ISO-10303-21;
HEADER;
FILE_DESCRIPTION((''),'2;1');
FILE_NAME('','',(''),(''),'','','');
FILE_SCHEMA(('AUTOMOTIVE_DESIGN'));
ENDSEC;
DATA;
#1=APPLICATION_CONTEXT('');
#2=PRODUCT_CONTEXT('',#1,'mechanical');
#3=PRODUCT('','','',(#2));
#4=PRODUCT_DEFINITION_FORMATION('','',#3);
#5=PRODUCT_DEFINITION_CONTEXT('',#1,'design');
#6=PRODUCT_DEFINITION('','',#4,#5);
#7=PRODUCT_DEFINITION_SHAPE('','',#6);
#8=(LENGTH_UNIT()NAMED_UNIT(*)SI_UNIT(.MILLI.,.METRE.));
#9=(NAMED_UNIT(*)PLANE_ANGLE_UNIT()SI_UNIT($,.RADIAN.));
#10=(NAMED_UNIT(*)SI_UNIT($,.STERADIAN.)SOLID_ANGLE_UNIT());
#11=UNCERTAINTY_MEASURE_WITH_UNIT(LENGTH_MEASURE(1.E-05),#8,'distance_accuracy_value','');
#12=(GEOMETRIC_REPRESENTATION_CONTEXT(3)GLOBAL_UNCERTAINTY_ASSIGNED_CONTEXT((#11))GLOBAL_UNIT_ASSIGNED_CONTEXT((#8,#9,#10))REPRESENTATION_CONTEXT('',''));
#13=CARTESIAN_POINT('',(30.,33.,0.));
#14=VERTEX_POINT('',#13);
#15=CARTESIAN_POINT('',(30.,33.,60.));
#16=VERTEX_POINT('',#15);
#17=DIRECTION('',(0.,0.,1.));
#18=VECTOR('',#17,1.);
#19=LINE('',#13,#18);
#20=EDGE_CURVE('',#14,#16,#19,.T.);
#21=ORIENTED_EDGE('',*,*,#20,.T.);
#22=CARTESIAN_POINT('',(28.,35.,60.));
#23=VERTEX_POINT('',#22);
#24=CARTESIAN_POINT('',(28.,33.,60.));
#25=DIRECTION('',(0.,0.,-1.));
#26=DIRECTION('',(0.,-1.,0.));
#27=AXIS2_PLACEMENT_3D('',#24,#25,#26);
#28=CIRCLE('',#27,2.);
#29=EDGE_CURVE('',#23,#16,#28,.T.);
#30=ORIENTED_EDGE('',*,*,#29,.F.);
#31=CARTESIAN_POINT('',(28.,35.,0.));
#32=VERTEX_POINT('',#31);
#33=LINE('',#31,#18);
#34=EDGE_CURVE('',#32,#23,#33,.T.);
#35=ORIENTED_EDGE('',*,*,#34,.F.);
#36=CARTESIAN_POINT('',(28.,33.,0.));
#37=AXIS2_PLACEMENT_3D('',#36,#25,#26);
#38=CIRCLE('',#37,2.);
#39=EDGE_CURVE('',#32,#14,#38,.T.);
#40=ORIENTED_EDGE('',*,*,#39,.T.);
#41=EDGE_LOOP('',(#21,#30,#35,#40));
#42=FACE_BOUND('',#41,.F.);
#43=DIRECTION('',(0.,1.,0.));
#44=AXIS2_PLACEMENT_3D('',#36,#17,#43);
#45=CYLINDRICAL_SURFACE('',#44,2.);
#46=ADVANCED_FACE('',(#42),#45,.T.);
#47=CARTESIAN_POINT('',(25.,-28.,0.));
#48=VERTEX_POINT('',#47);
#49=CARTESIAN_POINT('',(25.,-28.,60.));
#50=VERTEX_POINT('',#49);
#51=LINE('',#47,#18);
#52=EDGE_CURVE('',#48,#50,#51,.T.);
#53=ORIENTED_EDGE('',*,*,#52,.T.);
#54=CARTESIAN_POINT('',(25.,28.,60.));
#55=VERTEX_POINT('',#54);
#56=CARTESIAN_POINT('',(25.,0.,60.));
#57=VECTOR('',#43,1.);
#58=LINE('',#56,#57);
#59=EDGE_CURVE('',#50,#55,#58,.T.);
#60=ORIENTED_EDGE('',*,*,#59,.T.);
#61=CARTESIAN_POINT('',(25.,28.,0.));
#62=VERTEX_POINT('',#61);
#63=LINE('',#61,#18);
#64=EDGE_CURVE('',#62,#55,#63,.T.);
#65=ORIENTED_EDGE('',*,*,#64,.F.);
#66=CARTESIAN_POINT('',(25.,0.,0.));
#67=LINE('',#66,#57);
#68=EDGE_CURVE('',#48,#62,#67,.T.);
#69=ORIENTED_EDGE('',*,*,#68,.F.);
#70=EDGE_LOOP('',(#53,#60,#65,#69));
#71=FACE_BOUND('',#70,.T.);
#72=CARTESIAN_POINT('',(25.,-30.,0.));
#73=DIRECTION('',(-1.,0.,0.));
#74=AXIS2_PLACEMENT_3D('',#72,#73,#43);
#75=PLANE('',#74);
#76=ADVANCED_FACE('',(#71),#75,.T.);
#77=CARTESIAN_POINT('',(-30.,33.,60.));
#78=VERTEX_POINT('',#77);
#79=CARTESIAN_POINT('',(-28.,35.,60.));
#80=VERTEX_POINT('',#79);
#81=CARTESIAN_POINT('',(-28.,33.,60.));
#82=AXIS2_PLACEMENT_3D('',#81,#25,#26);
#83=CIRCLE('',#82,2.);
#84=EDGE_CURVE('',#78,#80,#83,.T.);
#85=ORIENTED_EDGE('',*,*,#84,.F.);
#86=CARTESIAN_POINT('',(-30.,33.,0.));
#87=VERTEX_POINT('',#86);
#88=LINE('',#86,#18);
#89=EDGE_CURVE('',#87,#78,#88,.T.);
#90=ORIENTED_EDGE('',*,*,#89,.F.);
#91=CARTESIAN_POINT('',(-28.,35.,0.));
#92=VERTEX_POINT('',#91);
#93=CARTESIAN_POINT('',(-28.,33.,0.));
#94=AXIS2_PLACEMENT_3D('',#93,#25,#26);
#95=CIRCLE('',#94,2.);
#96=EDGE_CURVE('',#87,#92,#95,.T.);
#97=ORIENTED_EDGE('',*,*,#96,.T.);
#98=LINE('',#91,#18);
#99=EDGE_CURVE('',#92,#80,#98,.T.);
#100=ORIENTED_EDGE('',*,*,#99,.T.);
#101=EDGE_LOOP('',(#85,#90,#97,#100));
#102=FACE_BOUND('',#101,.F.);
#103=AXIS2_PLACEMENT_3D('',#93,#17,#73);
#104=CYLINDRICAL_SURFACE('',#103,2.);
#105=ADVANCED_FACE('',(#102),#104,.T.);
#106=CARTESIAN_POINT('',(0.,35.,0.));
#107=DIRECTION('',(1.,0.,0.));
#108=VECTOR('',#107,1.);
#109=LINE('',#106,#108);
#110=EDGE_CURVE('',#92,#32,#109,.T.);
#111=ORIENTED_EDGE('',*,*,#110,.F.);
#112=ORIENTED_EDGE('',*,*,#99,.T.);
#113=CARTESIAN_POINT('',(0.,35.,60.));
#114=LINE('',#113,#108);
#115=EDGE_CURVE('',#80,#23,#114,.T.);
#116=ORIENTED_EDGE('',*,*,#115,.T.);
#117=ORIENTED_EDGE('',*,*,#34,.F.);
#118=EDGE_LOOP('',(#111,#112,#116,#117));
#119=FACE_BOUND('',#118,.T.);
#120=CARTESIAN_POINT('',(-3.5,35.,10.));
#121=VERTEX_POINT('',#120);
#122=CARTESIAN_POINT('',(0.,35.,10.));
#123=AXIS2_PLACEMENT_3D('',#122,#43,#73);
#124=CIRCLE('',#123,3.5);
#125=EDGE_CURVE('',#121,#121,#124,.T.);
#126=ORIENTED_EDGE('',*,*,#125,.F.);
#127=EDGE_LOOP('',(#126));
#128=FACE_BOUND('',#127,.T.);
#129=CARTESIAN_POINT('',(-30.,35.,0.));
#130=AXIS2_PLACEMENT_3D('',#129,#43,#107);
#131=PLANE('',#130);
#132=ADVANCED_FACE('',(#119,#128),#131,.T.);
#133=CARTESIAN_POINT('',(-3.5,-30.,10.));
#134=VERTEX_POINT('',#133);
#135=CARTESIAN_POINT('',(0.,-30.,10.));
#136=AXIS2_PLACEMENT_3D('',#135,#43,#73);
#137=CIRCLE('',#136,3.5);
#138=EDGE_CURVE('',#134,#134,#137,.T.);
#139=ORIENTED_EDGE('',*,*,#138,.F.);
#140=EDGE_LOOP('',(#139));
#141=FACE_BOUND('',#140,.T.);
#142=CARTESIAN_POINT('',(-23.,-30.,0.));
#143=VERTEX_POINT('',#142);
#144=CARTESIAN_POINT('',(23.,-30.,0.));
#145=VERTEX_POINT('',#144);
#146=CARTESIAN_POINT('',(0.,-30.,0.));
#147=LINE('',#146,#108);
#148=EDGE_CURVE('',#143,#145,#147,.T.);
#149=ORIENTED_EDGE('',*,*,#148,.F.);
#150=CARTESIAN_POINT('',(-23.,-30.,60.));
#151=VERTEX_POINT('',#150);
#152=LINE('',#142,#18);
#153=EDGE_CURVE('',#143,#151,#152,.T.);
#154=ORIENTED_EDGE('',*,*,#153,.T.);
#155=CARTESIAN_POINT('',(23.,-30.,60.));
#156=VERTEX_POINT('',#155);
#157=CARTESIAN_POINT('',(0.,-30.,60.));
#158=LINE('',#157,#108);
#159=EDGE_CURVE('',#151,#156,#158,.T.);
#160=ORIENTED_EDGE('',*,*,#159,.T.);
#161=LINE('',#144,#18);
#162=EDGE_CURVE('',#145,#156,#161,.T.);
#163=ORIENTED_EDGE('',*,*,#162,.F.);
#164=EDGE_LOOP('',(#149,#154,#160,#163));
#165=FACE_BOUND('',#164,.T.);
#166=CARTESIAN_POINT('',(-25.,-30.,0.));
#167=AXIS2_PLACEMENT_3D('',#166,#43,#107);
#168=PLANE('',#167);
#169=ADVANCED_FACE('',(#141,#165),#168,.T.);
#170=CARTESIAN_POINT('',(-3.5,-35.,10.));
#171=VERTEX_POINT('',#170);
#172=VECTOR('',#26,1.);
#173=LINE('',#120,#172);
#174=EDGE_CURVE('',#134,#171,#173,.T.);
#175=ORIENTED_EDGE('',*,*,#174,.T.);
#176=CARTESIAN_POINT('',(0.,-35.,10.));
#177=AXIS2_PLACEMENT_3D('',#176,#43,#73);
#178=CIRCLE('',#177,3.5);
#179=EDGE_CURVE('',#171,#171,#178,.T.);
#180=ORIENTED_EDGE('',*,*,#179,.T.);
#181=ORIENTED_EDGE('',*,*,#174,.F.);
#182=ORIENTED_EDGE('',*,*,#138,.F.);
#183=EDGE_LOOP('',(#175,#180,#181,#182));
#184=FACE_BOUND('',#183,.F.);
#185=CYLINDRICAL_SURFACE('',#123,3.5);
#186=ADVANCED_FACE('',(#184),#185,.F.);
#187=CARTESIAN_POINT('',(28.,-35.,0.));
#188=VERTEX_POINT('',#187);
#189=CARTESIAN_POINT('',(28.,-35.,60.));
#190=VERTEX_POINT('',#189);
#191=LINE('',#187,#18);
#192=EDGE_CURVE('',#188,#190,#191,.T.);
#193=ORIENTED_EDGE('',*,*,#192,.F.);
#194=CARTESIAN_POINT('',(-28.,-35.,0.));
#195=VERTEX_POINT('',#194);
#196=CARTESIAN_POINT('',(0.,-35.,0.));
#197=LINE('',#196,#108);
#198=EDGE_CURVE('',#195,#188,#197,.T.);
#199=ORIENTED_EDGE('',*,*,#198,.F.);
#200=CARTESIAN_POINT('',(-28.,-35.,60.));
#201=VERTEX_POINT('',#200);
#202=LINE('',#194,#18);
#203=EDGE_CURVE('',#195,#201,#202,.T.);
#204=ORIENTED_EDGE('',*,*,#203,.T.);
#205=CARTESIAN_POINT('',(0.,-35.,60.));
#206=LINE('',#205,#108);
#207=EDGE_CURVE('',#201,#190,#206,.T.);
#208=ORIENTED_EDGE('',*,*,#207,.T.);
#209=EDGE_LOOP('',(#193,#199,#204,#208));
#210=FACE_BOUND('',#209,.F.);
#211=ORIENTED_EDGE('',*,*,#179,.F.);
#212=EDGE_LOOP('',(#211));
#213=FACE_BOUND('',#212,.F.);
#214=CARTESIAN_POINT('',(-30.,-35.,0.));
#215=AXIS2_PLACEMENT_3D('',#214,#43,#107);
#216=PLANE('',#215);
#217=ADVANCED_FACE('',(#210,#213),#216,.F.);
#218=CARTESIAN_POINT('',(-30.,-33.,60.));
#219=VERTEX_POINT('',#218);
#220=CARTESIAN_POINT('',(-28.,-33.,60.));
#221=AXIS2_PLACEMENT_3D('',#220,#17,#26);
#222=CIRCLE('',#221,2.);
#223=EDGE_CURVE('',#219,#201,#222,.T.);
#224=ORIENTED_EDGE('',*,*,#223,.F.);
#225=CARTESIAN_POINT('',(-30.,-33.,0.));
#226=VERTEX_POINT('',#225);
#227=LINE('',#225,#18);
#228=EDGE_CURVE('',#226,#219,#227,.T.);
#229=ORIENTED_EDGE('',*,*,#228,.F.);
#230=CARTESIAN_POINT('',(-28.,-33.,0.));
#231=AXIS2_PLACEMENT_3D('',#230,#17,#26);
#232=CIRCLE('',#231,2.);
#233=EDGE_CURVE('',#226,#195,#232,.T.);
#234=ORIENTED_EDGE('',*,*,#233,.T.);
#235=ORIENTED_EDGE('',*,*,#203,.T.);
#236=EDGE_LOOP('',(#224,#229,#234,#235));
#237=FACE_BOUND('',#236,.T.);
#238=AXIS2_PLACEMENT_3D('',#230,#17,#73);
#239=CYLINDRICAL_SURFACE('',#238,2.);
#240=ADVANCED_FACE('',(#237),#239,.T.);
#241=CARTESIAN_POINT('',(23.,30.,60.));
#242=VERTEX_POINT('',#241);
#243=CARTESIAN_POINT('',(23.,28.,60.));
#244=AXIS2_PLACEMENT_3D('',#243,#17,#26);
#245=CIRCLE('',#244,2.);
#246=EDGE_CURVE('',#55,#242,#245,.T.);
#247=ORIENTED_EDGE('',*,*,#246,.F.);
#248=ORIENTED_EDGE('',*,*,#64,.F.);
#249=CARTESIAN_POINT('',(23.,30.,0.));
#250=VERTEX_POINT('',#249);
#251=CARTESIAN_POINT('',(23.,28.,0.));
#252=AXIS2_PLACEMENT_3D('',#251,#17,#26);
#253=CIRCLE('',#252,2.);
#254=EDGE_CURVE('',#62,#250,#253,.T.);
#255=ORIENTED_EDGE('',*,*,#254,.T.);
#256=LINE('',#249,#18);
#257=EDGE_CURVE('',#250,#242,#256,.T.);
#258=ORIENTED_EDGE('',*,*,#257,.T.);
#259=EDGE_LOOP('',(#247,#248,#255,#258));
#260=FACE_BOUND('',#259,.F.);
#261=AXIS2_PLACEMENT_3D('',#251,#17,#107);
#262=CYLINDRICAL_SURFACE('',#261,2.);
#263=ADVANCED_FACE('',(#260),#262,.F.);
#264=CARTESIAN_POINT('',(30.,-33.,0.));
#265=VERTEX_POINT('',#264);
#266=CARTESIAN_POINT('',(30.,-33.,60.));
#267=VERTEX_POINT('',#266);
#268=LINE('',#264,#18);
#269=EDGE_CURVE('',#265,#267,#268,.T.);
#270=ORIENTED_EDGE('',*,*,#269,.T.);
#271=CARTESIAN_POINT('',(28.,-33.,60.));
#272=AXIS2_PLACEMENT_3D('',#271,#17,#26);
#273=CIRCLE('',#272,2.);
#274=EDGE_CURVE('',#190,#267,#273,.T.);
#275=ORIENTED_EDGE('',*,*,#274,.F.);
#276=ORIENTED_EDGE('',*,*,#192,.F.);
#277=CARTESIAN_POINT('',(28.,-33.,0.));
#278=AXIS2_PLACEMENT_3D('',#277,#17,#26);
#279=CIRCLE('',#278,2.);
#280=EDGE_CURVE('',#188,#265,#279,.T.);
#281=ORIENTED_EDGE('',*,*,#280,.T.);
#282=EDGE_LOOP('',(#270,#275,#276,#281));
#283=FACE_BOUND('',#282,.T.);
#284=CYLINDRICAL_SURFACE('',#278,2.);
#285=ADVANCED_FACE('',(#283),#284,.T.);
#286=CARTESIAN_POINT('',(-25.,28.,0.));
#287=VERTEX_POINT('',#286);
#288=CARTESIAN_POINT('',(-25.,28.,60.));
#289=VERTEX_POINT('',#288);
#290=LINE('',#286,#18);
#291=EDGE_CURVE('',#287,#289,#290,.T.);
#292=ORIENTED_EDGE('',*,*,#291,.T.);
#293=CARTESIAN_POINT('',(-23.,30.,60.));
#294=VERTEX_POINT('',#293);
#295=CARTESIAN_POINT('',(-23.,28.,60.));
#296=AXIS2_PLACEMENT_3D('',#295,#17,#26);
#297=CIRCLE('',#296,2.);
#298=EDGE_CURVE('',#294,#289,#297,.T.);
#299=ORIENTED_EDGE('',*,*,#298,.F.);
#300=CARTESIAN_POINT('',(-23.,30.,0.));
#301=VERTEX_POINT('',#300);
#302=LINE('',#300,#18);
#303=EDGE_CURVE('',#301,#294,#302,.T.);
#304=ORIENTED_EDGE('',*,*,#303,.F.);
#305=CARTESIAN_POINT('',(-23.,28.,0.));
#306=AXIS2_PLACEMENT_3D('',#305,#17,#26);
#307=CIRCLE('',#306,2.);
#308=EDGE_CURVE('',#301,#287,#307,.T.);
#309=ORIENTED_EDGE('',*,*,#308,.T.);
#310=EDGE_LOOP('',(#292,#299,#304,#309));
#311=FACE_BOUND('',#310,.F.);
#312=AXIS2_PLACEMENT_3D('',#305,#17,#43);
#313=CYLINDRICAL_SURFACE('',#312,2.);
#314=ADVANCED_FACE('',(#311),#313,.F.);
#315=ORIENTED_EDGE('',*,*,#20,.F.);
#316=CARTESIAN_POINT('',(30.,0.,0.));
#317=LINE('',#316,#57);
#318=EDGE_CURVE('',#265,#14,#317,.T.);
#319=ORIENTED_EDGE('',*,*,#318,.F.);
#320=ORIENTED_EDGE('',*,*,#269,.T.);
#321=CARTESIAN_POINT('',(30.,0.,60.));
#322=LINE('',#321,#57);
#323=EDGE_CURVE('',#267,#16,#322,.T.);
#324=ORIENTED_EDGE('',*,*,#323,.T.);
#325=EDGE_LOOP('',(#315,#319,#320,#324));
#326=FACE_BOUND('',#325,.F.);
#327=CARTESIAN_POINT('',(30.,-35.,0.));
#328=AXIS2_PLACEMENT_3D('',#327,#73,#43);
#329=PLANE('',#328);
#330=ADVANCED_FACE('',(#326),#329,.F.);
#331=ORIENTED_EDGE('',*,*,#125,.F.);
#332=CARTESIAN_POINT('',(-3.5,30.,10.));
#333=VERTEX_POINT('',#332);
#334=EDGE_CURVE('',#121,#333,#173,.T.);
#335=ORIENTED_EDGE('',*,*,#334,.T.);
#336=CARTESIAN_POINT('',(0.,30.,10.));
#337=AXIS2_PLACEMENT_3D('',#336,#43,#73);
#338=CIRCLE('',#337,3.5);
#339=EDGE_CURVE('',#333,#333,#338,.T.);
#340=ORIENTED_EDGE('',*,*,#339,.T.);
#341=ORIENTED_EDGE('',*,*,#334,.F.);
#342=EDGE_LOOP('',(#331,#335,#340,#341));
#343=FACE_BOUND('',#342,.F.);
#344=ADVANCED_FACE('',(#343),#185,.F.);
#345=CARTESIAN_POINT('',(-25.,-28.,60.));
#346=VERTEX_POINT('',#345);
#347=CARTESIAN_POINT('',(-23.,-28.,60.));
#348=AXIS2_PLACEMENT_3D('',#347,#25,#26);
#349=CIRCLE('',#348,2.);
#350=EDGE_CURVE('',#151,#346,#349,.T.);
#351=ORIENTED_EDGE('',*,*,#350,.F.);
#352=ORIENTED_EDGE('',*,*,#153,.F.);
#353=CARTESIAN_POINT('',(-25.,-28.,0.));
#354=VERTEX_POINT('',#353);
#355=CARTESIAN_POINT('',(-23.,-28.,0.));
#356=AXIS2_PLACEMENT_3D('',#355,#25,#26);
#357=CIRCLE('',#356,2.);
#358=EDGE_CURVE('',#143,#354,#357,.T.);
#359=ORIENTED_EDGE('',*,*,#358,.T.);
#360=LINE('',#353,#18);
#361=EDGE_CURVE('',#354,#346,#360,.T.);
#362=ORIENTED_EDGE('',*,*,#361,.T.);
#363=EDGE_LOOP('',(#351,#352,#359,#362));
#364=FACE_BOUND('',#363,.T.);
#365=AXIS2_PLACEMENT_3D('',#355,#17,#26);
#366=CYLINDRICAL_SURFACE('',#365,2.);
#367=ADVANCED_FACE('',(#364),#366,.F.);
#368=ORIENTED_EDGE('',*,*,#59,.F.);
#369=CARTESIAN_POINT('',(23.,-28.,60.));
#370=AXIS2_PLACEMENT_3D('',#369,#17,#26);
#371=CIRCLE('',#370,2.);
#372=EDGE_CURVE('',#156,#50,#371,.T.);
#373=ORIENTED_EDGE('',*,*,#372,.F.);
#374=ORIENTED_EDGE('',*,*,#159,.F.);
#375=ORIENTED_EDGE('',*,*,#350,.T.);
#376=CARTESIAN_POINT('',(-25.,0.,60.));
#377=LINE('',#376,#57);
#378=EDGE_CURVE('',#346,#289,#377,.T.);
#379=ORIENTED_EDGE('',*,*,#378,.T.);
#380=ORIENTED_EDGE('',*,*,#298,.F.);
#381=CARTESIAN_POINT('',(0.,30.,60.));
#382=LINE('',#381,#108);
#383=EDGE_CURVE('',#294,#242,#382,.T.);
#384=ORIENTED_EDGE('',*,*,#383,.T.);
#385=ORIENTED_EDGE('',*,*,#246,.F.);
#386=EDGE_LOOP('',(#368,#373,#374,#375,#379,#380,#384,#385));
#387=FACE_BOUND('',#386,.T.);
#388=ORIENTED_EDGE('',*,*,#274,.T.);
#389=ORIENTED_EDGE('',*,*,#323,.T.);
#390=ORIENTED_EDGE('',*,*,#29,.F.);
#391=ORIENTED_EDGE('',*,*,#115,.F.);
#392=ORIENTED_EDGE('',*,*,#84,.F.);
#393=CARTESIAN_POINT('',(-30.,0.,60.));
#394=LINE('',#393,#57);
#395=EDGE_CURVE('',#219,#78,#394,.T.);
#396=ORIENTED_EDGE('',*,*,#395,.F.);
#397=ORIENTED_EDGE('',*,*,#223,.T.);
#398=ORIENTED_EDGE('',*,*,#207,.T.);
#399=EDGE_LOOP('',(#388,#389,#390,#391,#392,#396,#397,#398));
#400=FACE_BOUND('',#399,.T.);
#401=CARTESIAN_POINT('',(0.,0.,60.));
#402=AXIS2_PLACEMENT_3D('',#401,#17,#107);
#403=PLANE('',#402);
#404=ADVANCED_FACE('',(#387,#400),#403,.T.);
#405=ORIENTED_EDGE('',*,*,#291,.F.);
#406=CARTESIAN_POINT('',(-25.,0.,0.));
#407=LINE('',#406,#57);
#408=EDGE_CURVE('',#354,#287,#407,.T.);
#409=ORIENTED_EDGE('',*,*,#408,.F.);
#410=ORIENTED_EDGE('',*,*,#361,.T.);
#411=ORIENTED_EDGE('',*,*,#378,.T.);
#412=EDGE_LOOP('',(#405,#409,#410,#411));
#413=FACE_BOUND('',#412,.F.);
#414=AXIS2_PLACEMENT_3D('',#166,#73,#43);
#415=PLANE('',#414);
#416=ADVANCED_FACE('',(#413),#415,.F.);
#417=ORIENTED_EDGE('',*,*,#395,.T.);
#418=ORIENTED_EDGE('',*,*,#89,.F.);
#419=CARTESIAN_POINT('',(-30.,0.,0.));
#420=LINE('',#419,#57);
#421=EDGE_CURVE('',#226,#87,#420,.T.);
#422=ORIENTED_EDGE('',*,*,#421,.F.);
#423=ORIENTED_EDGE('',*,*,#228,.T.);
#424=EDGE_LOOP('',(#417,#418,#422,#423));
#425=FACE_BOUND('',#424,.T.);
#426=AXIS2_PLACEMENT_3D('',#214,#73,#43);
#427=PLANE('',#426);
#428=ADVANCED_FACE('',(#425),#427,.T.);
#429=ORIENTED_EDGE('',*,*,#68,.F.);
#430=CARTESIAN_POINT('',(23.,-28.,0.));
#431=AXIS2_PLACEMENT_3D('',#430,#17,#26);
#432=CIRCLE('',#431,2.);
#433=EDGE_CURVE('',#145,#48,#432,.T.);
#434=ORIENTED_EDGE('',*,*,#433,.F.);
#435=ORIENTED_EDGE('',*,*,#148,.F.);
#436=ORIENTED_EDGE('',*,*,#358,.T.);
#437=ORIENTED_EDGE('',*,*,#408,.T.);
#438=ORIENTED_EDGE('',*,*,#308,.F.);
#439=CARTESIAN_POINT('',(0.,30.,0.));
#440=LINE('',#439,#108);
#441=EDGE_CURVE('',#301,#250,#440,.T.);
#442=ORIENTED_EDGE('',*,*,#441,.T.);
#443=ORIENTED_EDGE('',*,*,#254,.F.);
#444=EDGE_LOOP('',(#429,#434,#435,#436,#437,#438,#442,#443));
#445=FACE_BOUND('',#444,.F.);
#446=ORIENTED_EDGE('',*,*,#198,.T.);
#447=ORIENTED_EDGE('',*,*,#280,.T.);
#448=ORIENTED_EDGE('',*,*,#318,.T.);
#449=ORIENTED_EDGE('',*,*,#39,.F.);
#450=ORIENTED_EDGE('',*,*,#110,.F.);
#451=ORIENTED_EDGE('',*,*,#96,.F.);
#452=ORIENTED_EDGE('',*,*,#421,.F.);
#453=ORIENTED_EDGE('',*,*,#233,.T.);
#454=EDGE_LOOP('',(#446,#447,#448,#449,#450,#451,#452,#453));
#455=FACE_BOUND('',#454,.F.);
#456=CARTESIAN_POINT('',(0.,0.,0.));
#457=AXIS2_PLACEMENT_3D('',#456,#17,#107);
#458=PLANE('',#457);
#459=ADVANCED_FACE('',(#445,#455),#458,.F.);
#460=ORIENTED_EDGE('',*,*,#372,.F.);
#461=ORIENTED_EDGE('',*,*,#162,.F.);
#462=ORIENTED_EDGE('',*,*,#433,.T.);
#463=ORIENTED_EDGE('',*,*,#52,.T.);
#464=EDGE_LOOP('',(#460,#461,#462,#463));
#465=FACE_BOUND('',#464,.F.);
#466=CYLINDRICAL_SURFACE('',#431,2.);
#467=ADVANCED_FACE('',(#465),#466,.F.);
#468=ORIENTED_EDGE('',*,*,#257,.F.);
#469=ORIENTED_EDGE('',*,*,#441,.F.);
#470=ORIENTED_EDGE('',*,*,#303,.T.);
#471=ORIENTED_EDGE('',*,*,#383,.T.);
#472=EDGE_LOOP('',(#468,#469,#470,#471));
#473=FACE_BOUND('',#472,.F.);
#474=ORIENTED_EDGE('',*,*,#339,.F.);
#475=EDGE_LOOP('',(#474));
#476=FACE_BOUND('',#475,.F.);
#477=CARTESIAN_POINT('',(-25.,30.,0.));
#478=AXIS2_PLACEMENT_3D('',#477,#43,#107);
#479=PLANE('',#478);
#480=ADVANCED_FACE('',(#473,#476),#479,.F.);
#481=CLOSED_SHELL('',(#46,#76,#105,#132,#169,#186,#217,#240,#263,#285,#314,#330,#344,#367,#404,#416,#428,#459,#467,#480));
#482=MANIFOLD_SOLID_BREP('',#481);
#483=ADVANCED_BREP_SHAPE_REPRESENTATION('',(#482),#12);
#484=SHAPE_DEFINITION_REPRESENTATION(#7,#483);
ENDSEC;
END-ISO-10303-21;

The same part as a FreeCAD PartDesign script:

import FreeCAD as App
import Part
import Sketcher

V = App.Vector
Q = App.Units.Quantity


def edges_at(feature, points):
    """Names of the edges that pass closest to the given points."""
    edges = feature.Shape.Edges
    near = lambda p: min(range(len(edges)), key=lambda i: edges[i].distToShape(Part.Vertex(*p))[0])
    return sorted({f"Edge{near(p) + 1}" for p in points})


def add_polygon(sketch, points):
    """Adds a closed chain of lines whose ends are joined by coincident constraints."""
    first, n = sketch.GeometryCount, len(points)
    for a, b in zip(points, points[1:] + points[:1]):
        sketch.addGeometry(Part.LineSegment(App.Vector(*a, 0), App.Vector(*b, 0)), False)
    for i in range(n):
        sketch.addConstraint(Sketcher.Constraint("Coincident", first + i, 2, first + (i + 1) % n, 1))

doc = App.newDocument("Part")
body = doc.addObject("PartDesign::Body", "Body")

sketch1 = doc.addObject("Sketcher::SketchObject", "Sketch")
body.addObject(sketch1)
sketch1.AttachmentSupport = (doc.XY_Plane, [""])
sketch1.MapMode = "FlatFace"
add_polygon(sketch1, [(-30, 35), (-30, -35), (30, -35), (30, 35)])
add_polygon(sketch1, [(25, -30), (-25, -30), (-25, 30), (25, 30)])
sketch1.addConstraint(Sketcher.Constraint("Vertical", 0))
sketch1.addConstraint(Sketcher.Constraint("Horizontal", 1))
sketch1.addConstraint(Sketcher.Constraint("Vertical", 2))
sketch1.addConstraint(Sketcher.Constraint("Horizontal", 3))
sketch1.addConstraint(Sketcher.Constraint("Horizontal", 4))
sketch1.addConstraint(Sketcher.Constraint("Vertical", 5))
sketch1.addConstraint(Sketcher.Constraint("Horizontal", 6))
sketch1.addConstraint(Sketcher.Constraint("Vertical", 7))
sketch1.addConstraint(Sketcher.Constraint("Symmetric", 0, 2, 2, 2, -1, 1))
sketch1.addConstraint(Sketcher.Constraint("Symmetric", 4, 2, 6, 2, -1, 1))
sketch1.addConstraint(Sketcher.Constraint("Equal", 3, 5))
sketch1.addConstraint(Sketcher.Constraint("DistanceX", 1, 1, 1, 2, Q("60 mm")))
sketch1.addConstraint(Sketcher.Constraint("DistanceX", 4, 2, 4, 1, Q("50 mm")))
sketch1.addConstraint(Sketcher.Constraint("DistanceY", 0, 2, 0, 1, Q("70 mm")))
pad1 = doc.addObject("PartDesign::Pad", "Pad")
body.addObject(pad1)
pad1.Profile = sketch1
pad1.Length = 60
doc.recompute()

fillet = doc.addObject("PartDesign::Fillet", "Fillet")
body.addObject(fillet)
fillet.Base = (pad1, edges_at(pad1, [
    (-30, 35, 30),
    (-30, -35, 30),
    (30, -35, 30),
    (30, 35, 30),
    (-25, 30, 30),
    (-25, -30, 30),
    (25, 30, 30),
    (25, -30, 30),
]))
fillet.Radius = 2

sketch2 = doc.addObject("Sketcher::SketchObject", "Sketch001")
body.addObject(sketch2)
sketch2.AttachmentSupport = (doc.XZ_Plane, [""])
sketch2.MapMode = "FlatFace"
sketch2.AttachmentOffset = App.Placement(V(0, 0, -35), App.Rotation())
sketch2.addGeometry(Part.Circle(V(0, 10, 0), V(0, 0, 1), 3.5), False)
sketch2.addConstraint(Sketcher.Constraint("PointOnObject", 0, 3, -2))
sketch2.addConstraint(Sketcher.Constraint("Diameter", 0, Q("7 mm")))
sketch2.addConstraint(Sketcher.Constraint("DistanceY", -1, 1, 0, 3, Q("10 mm")))
pocket1 = doc.addObject("PartDesign::Pocket", "Pocket")
body.addObject(pocket1)
pocket1.Profile = sketch2
pocket1.Length = 70
pocket1.Reversed = True

doc.recompute()
